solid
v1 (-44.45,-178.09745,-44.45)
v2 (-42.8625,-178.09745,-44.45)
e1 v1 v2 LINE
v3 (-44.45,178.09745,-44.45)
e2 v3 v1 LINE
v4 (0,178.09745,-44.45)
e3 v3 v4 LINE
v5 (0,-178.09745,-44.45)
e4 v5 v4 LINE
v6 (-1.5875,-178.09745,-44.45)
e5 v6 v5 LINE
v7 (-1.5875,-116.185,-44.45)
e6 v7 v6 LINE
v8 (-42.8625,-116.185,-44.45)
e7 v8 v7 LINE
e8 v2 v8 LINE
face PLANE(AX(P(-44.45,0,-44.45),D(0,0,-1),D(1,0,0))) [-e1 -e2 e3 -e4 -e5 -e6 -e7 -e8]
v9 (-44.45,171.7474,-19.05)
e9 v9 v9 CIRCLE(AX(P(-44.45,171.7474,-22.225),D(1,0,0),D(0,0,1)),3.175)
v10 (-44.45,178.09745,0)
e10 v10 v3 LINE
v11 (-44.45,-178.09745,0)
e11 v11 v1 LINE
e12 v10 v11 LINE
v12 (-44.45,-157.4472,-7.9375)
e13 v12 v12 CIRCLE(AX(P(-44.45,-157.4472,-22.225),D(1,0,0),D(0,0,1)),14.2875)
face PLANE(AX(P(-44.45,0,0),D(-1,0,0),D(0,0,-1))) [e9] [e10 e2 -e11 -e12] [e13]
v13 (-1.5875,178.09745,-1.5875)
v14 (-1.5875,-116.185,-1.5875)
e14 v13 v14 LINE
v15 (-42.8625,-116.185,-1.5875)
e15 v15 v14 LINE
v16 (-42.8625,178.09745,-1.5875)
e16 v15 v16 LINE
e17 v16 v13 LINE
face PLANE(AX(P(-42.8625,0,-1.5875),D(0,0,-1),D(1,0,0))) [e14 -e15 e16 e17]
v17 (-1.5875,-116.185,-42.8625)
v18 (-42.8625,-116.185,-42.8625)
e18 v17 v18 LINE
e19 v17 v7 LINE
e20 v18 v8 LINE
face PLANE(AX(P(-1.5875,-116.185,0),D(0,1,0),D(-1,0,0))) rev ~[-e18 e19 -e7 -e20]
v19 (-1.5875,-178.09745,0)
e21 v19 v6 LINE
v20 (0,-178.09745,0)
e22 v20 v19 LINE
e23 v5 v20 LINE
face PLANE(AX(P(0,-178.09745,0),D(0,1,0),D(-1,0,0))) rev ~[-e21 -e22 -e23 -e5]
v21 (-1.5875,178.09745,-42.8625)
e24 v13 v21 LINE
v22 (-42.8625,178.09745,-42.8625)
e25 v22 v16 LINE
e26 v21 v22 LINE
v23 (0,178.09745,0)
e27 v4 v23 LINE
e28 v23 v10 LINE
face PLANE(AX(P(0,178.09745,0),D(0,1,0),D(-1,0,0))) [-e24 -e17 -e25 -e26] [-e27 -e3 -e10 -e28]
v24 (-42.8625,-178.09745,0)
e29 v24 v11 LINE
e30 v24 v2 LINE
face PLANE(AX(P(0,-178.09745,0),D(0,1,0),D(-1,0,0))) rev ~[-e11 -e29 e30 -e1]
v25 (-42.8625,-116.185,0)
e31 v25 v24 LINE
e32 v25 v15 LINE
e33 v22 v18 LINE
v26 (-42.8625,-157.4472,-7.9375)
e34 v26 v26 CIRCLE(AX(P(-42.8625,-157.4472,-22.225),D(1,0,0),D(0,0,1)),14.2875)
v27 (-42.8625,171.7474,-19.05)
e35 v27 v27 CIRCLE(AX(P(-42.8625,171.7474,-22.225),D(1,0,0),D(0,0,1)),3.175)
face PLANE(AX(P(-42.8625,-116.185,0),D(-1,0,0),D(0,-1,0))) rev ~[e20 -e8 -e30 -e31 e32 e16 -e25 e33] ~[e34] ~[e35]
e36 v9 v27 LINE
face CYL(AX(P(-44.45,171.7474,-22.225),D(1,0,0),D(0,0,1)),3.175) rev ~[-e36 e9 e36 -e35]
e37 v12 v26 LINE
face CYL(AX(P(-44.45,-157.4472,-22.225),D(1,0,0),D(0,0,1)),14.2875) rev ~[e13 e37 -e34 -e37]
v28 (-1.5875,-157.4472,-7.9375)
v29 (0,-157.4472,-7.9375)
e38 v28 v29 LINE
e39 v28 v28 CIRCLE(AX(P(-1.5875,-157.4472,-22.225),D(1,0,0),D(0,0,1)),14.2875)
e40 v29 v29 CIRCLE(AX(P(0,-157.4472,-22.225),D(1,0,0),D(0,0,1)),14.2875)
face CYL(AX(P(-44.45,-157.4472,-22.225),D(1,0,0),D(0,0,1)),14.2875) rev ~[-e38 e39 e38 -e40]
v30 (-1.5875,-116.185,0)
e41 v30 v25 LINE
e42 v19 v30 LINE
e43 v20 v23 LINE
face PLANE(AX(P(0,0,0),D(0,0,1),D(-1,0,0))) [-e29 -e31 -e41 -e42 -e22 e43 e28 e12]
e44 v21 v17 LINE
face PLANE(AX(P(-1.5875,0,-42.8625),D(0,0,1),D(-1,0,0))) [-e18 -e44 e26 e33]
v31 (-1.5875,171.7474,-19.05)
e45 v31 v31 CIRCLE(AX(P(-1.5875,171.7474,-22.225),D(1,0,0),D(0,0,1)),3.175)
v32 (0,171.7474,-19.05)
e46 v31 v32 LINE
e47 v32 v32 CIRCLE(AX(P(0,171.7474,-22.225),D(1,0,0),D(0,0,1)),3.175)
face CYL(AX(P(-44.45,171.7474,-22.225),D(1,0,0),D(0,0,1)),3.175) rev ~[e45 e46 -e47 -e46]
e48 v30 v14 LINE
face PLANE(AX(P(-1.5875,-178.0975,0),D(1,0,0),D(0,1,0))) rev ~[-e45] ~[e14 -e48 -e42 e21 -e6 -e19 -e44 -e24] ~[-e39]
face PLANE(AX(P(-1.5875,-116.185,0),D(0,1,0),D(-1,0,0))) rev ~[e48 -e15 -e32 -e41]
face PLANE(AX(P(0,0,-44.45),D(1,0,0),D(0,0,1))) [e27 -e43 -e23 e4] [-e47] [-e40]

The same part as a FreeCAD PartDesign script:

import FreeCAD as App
import Part
import Sketcher
from FreeCAD import Vector
Q = App.Units.Quantity

doc = App.newDocument("Part")
body = doc.addObject("PartDesign::Body", "Body")

sketch1 = doc.addObject("Sketcher::SketchObject", "Sketch")
body.addObject(sketch1)
sketch1.AttachmentSupport = (doc.XZ_Plane, [""])
sketch1.MapMode = "FlatFace"
sketch1.addGeometry(Part.LineSegment(Vector(-44, 0, 0), Vector(0, 0, 0)), False)
sketch1.addGeometry(Part.LineSegment(Vector(0, 0, 0), Vector(0, -44, 0)), False)
sketch1.addGeometry(Part.LineSegment(Vector(0, -44, 0), Vector(-44, -44, 0)), False)
sketch1.addGeometry(Part.LineSegment(Vector(-44, -44, 0), Vector(-44, 0, 0)), False)
sketch1.addGeometry(Part.LineSegment(Vector(-2, -2, 0), Vector(-43, -2, 0)), False)
sketch1.addGeometry(Part.LineSegment(Vector(-43, -2, 0), Vector(-43, -43, 0)), False)
sketch1.addGeometry(Part.LineSegment(Vector(-43, -43, 0), Vector(-2, -43, 0)), False)
sketch1.addGeometry(Part.LineSegment(Vector(-2, -43, 0), Vector(-2, -2, 0)), False)
sketch1.addConstraint(Sketcher.Constraint("Coincident", 0, 2, 1, 1))
sketch1.addConstraint(Sketcher.Constraint("Coincident", 1, 2, 2, 1))
sketch1.addConstraint(Sketcher.Constraint("Coincident", 2, 2, 3, 1))
sketch1.addConstraint(Sketcher.Constraint("Coincident", 3, 2, 0, 1))
sketch1.addConstraint(Sketcher.Constraint("Coincident", 4, 2, 5, 1))
sketch1.addConstraint(Sketcher.Constraint("Coincident", 5, 2, 6, 1))
sketch1.addConstraint(Sketcher.Constraint("Coincident", 6, 2, 7, 1))
sketch1.addConstraint(Sketcher.Constraint("Coincident", 7, 2, 4, 1))
sketch1.addConstraint(Sketcher.Constraint("Horizontal", 0))
sketch1.addConstraint(Sketcher.Constraint("Vertical", 1))
sketch1.addConstraint(Sketcher.Constraint("Horizontal", 2))
sketch1.addConstraint(Sketcher.Constraint("Vertical", 3))
sketch1.addConstraint(Sketcher.Constraint("Horizontal", 4))
sketch1.addConstraint(Sketcher.Constraint("Vertical", 5))
sketch1.addConstraint(Sketcher.Constraint("Horizontal", 6))
sketch1.addConstraint(Sketcher.Constraint("Vertical", 7))
sketch1.addConstraint(Sketcher.Constraint("Coincident", 0, 2, -1, 1))
sketch1.addConstraint(Sketcher.Constraint("Equal", 2, 1))
sketch1.addConstraint(Sketcher.Constraint("Equal", 6, 5))
sketch1.addConstraint(Sketcher.Constraint("DistanceX", 0, 1, 0, 2, Q("1.75 in")))
sketch1.addConstraint(Sketcher.Constraint("DistanceY", 4, 2, -1, 1, Q("0.0625 in")))
sketch1.addConstraint(Sketcher.Constraint("DistanceX", 6, 2, -1, 1, Q("0.0625 in")))
sketch1.addConstraint(Sketcher.Constraint("DistanceX", 3, 2, 4, 2, Q("0.0625 in")))
pad1 = doc.addObject("PartDesign::Pad", "Pad")
body.addObject(pad1)
pad1.Profile = sketch1
pad1.Length = 356.1949
pad1.Midplane = True

sketch2 = doc.addObject("Sketcher::SketchObject", "Sketch001")
body.addObject(sketch2)
sketch2.AttachmentSupport = (doc.YZ_Plane, [""])
sketch2.MapMode = "FlatFace"
sketch2.AttachmentOffset = App.Placement(Vector(0, 0, -1.75 * 25.4), App.Rotation())
sketch2.addGeometry(Part.Circle(Vector(171.7, -22.2, 0), Vector(0, 0, 1), 3.2), False)
sketch2.addConstraint(Sketcher.Constraint("Diameter", 0, Q("0.25 in")))
sketch2.addConstraint(Sketcher.Constraint("DistanceY", 0, 3, -1, 1, Q("0.875 in")))
sketch2.addConstraint(Sketcher.Constraint("DistanceX", -1, 1, 0, 3, Q("6.7617 in")))
doc.recompute()
hole = doc.addObject("PartDesign::Hole", "Hole")
body.addObject(hole)
hole.Profile = sketch2
hole.ThreadType = "None"
hole.Diameter = Q("0.25 in")
hole.DepthType = "ThroughAll"
hole.Reversed = True

sketch3 = doc.addObject("Sketcher::SketchObject", "Sketch002")
body.addObject(sketch3)
sketch3.AttachmentSupport = (doc.XY_Plane, [""])
sketch3.MapMode = "FlatFace"
sketch3.addGeometry(Part.LineSegment(Vector(-43, -178, 0), Vector(-2, -178, 0)), False)
sketch3.addGeometry(Part.LineSegment(Vector(-2, -178, 0), Vector(-2, -116, 0)), False)
sketch3.addGeometry(Part.LineSegment(Vector(-2, -116, 0), Vector(-43, -116, 0)), False)
sketch3.addGeometry(Part.LineSegment(Vector(-43, -116, 0), Vector(-43, -178, 0)), False)
sketch3.addConstraint(Sketcher.Constraint("Coincident", 0, 2, 1, 1))
sketch3.addConstraint(Sketcher.Constraint("Coincident", 1, 2, 2, 1))
sketch3.addConstraint(Sketcher.Constraint("Coincident", 2, 2, 3, 1))
sketch3.addConstraint(Sketcher.Constraint("Coincident", 3, 2, 0, 1))
sketch3.addConstraint(Sketcher.Constraint("Horizontal", 0))
sketch3.addConstraint(Sketcher.Constraint("Vertical", 1))
sketch3.addConstraint(Sketcher.Constraint("Horizontal", 2))
sketch3.addConstraint(Sketcher.Constraint("Vertical", 3))
sketch3.addConstraint(Sketcher.Constraint("DistanceY", 1, 1, 1, 2, Q("2.4375 in")))
sketch3.addConstraint(Sketcher.Constraint("DistanceX", 0, 1, 0, 2, Q("1.625 in")))
sketch3.addConstraint(Sketcher.Constraint("DistanceX", 0, 2, -1, 1, Q("0.0625 in")))
sketch3.addConstraint(Sketcher.Constraint("DistanceY", 0, 2, -1, 1, Q("178.0975 mm")))
pocket1 = doc.addObject("PartDesign::Pocket", "Pocket")
body.addObject(pocket1)
pocket1.Profile = sketch3
pocket1.Type = "ThroughAll"

sketch4 = doc.addObject("Sketcher::SketchObject", "Sketch003")
body.addObject(sketch4)
sketch4.AttachmentSupport = (doc.YZ_Plane, [""])
sketch4.MapMode = "FlatFace"
sketch4.AttachmentOffset = App.Placement(Vector(0, 0, -1.75 * 25.4), App.Rotation())
sketch4.addGeometry(Part.Circle(Vector(-157, -22, 0), Vector(0, 0, 1), 14), False)
sketch4.addConstraint(Sketcher.Constraint("Diameter", 0, Q("1.125 in")))
sketch4.addConstraint(Sketcher.Constraint("DistanceY", 0, 3, -1, 1, Q("0.875 in")))
sketch4.addConstraint(Sketcher.Constraint("DistanceX", 0, 3, -1, 1, Q("6.1987 in")))
doc.recompute()
hole2 = doc.addObject("PartDesign::Hole", "Hole001")
body.addObject(hole2)
hole2.Profile = sketch4
hole2.ThreadType = "None"
hole2.Diameter = Q("1.125 in")
hole2.DepthType = "ThroughAll"
hole2.Reversed = True

doc.recompute()
